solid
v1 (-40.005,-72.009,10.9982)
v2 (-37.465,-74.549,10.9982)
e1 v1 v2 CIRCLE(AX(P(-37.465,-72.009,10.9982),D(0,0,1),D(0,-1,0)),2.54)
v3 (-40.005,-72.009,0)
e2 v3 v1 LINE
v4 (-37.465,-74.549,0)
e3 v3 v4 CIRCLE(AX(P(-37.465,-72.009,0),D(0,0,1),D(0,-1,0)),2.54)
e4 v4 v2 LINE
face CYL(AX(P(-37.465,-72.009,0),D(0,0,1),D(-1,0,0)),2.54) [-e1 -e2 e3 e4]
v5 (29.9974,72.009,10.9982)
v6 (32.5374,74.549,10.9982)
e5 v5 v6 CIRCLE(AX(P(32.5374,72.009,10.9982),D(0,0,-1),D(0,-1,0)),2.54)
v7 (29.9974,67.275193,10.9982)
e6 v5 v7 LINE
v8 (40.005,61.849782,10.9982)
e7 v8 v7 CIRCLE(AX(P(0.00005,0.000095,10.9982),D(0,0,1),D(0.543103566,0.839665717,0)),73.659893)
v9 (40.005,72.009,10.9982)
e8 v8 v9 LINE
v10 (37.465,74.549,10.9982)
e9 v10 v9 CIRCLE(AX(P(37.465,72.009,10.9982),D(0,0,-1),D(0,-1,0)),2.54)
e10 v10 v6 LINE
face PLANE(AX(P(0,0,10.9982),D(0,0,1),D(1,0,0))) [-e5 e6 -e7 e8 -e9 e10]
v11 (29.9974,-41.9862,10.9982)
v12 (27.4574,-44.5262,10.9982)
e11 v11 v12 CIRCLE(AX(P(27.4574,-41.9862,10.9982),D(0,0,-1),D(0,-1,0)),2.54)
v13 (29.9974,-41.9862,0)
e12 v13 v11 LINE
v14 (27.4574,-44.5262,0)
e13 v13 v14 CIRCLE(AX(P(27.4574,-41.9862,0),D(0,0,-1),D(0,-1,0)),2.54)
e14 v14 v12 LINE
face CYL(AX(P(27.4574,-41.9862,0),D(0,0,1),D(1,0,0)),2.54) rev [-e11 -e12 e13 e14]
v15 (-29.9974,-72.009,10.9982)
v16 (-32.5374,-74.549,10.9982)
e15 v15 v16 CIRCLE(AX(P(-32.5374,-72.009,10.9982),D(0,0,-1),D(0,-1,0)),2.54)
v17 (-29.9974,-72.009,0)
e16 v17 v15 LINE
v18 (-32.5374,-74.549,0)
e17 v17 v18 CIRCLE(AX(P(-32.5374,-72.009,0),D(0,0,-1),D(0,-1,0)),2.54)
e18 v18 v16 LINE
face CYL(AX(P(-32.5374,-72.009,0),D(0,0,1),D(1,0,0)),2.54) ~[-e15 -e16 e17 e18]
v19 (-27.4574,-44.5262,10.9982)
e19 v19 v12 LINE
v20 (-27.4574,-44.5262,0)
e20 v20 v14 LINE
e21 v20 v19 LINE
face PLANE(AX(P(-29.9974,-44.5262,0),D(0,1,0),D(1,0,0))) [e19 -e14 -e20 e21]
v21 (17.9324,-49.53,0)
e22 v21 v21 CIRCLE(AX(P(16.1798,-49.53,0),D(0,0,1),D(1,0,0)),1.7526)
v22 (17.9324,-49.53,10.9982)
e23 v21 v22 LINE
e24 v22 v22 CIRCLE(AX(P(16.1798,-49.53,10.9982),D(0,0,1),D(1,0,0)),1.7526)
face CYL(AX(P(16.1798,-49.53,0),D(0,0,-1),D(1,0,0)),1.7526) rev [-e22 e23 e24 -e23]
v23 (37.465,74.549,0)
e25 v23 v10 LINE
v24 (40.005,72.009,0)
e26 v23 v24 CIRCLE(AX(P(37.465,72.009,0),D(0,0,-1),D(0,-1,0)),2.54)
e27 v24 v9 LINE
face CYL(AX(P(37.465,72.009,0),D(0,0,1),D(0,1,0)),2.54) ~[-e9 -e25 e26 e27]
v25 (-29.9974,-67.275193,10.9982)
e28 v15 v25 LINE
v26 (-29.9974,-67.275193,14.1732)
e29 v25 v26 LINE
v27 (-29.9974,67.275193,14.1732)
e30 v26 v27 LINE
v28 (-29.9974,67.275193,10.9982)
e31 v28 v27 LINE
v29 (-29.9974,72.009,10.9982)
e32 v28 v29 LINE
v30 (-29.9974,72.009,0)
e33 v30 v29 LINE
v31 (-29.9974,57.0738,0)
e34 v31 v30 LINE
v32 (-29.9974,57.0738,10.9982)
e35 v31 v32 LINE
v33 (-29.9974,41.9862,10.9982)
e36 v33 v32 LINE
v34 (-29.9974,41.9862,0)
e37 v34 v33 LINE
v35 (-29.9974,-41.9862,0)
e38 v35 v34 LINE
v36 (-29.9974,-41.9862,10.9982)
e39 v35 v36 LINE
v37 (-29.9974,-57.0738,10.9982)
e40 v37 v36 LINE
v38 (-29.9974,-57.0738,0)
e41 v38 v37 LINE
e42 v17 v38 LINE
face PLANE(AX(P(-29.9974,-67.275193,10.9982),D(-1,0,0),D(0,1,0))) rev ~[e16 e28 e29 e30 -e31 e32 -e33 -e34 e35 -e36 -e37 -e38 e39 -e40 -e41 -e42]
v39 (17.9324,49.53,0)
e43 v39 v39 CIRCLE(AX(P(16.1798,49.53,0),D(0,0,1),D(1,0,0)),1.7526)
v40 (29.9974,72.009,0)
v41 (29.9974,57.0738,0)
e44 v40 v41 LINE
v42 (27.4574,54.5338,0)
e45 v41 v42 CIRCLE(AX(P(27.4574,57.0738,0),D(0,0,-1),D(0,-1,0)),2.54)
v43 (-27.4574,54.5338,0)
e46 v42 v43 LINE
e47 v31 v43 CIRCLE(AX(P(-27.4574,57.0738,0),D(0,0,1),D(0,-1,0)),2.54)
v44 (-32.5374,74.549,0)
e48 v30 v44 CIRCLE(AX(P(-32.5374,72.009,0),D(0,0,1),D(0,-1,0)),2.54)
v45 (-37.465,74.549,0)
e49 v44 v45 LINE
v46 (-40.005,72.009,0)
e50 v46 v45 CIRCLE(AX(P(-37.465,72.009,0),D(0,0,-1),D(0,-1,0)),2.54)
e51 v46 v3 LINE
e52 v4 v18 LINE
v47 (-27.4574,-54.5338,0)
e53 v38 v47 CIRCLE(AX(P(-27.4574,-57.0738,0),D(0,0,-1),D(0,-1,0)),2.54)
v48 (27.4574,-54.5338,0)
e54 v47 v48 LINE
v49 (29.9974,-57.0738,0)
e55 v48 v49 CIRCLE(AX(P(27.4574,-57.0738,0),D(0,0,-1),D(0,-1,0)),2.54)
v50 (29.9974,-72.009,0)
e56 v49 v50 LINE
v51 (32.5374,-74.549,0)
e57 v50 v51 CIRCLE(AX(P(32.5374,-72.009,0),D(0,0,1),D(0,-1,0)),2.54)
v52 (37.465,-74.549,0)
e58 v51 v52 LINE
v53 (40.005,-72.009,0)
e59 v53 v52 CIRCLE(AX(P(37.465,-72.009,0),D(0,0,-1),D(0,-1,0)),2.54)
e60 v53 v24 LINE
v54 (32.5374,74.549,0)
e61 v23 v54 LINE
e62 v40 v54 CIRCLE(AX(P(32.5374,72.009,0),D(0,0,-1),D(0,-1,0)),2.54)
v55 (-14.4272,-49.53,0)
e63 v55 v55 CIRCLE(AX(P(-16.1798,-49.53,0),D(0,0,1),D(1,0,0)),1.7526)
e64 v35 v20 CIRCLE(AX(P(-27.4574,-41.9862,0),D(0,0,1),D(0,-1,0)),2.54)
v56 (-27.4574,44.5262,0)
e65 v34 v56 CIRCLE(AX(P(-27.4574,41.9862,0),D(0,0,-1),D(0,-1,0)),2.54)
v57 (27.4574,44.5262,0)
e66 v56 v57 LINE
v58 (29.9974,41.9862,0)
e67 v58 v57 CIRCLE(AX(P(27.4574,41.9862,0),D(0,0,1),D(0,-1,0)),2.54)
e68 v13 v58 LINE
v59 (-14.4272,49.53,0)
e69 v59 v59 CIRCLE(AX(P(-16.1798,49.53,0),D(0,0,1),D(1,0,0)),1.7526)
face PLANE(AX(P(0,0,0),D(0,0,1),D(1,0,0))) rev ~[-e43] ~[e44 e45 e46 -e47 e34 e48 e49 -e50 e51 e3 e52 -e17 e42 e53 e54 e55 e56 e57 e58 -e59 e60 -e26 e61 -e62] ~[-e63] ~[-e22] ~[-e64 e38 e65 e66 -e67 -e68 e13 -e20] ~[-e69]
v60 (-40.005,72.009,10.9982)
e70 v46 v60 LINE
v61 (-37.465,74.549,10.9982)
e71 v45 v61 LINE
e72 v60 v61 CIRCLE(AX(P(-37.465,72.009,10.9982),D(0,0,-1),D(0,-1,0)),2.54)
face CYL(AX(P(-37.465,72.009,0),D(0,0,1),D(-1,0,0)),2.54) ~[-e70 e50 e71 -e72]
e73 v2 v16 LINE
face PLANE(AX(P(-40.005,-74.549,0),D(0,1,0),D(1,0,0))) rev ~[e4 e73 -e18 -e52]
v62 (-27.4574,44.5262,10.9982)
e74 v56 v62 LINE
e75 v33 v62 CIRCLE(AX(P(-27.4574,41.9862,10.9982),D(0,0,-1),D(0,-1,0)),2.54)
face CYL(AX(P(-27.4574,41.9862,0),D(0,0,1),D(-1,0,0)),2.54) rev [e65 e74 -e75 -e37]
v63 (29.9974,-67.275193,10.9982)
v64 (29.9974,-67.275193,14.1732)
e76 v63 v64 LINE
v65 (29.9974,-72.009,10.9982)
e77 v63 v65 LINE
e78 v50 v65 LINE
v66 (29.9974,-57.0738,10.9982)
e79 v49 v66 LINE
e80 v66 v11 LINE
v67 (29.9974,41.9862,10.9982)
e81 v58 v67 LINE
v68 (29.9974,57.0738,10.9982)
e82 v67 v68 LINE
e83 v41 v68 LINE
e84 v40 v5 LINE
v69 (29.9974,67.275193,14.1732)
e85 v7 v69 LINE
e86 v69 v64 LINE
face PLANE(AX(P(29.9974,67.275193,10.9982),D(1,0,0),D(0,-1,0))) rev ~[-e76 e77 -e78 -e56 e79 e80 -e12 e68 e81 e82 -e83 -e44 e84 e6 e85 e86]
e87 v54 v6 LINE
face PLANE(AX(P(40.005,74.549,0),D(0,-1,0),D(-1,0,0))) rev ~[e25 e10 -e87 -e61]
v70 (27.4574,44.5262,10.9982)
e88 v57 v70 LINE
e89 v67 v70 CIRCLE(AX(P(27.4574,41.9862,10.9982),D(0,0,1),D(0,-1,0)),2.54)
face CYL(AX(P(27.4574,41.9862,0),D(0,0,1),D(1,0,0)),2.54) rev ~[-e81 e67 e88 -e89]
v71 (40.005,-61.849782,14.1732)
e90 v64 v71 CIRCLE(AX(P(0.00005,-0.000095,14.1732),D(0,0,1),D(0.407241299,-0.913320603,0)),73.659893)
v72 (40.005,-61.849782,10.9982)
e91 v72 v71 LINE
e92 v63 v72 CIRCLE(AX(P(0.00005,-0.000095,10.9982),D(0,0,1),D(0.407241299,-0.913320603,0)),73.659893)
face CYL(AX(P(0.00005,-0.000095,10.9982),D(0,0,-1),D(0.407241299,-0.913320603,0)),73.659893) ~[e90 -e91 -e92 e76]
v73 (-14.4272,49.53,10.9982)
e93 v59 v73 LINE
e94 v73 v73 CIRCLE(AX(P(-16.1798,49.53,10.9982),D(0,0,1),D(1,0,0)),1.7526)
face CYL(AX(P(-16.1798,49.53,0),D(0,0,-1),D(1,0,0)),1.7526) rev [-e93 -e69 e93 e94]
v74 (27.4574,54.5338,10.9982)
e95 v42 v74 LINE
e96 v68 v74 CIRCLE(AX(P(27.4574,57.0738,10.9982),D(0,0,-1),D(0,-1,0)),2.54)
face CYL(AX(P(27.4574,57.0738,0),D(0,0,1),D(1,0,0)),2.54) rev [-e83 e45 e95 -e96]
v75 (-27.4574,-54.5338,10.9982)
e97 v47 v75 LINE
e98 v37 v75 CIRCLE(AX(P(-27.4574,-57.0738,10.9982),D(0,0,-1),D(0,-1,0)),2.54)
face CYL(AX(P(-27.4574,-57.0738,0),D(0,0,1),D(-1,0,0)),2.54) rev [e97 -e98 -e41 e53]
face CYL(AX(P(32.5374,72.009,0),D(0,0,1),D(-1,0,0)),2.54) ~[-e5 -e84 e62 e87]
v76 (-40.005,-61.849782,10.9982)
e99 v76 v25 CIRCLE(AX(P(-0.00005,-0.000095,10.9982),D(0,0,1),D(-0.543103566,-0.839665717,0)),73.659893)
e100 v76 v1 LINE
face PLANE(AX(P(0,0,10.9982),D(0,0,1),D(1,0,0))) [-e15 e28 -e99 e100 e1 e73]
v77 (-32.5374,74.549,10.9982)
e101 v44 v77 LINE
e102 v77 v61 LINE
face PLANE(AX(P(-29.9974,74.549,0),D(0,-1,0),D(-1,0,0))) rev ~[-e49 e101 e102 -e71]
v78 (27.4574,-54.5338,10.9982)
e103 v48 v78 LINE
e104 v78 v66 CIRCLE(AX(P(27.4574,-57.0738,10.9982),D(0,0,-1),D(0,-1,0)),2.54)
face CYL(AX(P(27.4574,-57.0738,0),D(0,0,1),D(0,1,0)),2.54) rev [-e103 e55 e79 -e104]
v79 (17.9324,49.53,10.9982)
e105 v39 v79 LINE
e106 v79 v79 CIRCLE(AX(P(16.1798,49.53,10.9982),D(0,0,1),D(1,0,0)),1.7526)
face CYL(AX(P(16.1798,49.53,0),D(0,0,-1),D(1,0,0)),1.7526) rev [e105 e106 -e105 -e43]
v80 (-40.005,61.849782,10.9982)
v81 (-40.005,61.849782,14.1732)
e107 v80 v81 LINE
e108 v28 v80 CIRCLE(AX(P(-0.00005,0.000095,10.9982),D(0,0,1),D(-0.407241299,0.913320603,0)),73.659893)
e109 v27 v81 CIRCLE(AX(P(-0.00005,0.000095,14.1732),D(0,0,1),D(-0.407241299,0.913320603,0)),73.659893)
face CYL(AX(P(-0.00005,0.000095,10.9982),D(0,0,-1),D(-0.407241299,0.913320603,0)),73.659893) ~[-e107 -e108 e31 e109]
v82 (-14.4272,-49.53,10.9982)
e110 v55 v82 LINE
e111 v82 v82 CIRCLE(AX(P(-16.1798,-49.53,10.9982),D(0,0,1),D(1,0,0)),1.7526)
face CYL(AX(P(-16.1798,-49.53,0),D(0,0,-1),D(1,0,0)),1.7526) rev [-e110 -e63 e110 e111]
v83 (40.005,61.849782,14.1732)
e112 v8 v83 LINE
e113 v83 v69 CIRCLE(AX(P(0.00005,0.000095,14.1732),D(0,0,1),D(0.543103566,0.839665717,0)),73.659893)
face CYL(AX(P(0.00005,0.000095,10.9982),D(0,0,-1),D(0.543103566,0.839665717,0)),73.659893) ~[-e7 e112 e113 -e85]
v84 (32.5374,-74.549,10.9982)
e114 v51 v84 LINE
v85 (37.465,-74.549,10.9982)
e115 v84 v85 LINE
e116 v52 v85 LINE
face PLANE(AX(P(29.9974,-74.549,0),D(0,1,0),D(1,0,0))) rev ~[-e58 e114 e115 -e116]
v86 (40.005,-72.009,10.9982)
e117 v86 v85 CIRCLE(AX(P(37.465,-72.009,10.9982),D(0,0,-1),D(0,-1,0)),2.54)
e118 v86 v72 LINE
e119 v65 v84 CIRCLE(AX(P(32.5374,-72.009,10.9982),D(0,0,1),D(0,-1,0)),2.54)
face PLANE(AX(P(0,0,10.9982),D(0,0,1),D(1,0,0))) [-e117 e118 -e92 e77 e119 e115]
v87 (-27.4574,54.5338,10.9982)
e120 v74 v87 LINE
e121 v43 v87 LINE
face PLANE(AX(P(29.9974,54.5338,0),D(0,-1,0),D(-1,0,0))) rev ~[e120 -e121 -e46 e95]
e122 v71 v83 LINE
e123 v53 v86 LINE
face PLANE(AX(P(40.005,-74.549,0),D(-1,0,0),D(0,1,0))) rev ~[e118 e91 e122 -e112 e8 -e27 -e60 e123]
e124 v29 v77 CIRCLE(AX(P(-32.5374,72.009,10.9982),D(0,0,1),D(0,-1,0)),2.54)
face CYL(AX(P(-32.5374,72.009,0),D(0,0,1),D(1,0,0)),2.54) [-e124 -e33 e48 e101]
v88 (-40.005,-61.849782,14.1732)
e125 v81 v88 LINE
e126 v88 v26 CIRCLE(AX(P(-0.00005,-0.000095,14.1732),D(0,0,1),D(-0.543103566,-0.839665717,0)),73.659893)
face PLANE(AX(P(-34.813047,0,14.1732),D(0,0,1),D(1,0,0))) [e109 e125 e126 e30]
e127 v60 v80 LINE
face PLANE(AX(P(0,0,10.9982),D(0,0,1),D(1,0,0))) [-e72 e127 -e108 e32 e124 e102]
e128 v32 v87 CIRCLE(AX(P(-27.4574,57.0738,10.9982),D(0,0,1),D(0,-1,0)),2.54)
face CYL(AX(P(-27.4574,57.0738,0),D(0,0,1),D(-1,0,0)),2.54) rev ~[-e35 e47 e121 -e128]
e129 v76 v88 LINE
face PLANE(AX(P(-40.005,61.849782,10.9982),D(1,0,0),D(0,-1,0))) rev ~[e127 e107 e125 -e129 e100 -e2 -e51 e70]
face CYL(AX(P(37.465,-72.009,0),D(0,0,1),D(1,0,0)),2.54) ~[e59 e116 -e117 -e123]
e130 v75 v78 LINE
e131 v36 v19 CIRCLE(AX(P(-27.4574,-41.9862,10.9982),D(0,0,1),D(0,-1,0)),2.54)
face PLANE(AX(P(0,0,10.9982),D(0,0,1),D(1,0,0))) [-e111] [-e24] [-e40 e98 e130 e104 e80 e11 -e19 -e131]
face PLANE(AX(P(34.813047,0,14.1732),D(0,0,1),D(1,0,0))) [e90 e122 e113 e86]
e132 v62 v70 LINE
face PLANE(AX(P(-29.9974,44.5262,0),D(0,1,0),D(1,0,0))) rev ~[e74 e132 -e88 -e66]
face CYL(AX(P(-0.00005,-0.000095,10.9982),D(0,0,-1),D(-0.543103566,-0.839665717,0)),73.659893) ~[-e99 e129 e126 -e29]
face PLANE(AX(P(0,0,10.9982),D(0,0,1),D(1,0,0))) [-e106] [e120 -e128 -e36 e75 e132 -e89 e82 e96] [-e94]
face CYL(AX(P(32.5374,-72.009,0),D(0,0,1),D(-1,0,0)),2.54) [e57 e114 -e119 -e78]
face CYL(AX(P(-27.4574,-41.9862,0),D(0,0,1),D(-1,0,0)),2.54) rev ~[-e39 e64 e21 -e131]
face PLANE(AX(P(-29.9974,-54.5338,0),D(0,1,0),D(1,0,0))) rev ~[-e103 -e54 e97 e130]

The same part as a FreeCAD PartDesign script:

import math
import FreeCAD as App
import Part
import Sketcher
from FreeCAD import Vector
Q = App.Units.Quantity


def edges_at(feature, points):
    """Names of the edges that pass closest to the given points."""
    edges = feature.Shape.Edges
    near = lambda p: min(range(len(edges)), key=lambda i: edges[i].distToShape(Part.Vertex(*p))[0])
    return sorted({f"Edge{near(p) + 1}" for p in points})

doc = App.newDocument("Part")
body = doc.addObject("PartDesign::Body", "Body")

# Sketch on XY plane
sketch1 = body.newObject("Sketcher::SketchObject", "Sketch")
sketch1.AttachmentSupport = (doc.getObject("XY_Plane"), [""])
sketch1.MapMode = "FlatFace"
sketch1.addGeometry(Part.LineSegment(Vector(30, 54.5, 0), Vector(-30, 54.5, 0)), False)
sketch1.addGeometry(Part.LineSegment(Vector(-30, 54.5, 0), Vector(-30, 74.5, 0)), False)
sketch1.addGeometry(Part.LineSegment(Vector(-30, 74.5, 0), Vector(-40, 74.5, 0)), False)
sketch1.addGeometry(Part.LineSegment(Vector(-40, 74.5, 0), Vector(-40, -74.5, 0)), False)
sketch1.addGeometry(Part.LineSegment(Vector(-40, -74.5, 0), Vector(-30, -74.5, 0)), False)
sketch1.addGeometry(Part.LineSegment(Vector(-30, -74.5, 0), Vector(-30, -54.5, 0)), False)
sketch1.addGeometry(Part.LineSegment(Vector(-30, -54.5, 0), Vector(30, -54.5, 0)), False)
sketch1.addGeometry(Part.LineSegment(Vector(30, -54.5, 0), Vector(30, -74.5, 0)), False)
sketch1.addGeometry(Part.LineSegment(Vector(30, -74.5, 0), Vector(40, -74.5, 0)), False)
sketch1.addGeometry(Part.LineSegment(Vector(40, -74.5, 0), Vector(40, 74.5, 0)), False)
sketch1.addGeometry(Part.LineSegment(Vector(40, 74.5, 0), Vector(30, 74.5, 0)), False)
sketch1.addGeometry(Part.LineSegment(Vector(30, 74.5, 0), Vector(30, 54.5, 0)), False)
sketch1.addGeometry(Part.Circle(Vector(-16.2, -49.5, 0), Vector(0, 0, 1), 1.8), False)
sketch1.addGeometry(Part.Circle(Vector(16.2, -49.5, 0), Vector(0, 0, 1), 1.8), False)
sketch1.addGeometry(Part.Circle(Vector(-16.2, 49.5, 0), Vector(0, 0, 1), 1.8), False)
sketch1.addGeometry(Part.LineSegment(Vector(30, -44.5, 0), Vector(-30, -44.5, 0)), False)
sketch1.addGeometry(Part.LineSegment(Vector(-30, -44.5, 0), Vector(-30, 44.5, 0)), False)
sketch1.addGeometry(Part.LineSegment(Vector(-30, 44.5, 0), Vector(30, 44.5, 0)), False)
sketch1.addGeometry(Part.LineSegment(Vector(30, 44.5, 0), Vector(30, -44.5, 0)), False)
sketch1.addGeometry(Part.Circle(Vector(16.2, 49.5, 0), Vector(0, 0, 1), 1.8), False)
sketch1.addConstraint(Sketcher.Constraint("Coincident", 0, 2, 1, 1))
sketch1.addConstraint(Sketcher.Constraint("Coincident", 1, 2, 2, 1))
sketch1.addConstraint(Sketcher.Constraint("Coincident", 2, 2, 3, 1))
sketch1.addConstraint(Sketcher.Constraint("Coincident", 3, 2, 4, 1))
sketch1.addConstraint(Sketcher.Constraint("Coincident", 4, 2, 5, 1))
sketch1.addConstraint(Sketcher.Constraint("Coincident", 5, 2, 6, 1))
sketch1.addConstraint(Sketcher.Constraint("Coincident", 6, 2, 7, 1))
sketch1.addConstraint(Sketcher.Constraint("Coincident", 7, 2, 8, 1))
sketch1.addConstraint(Sketcher.Constraint("Coincident", 8, 2, 9, 1))
sketch1.addConstraint(Sketcher.Constraint("Coincident", 9, 2, 10, 1))
sketch1.addConstraint(Sketcher.Constraint("Coincident", 10, 2, 11, 1))
sketch1.addConstraint(Sketcher.Constraint("Coincident", 11, 2, 0, 1))
sketch1.addConstraint(Sketcher.Constraint("Coincident", 15, 2, 16, 1))
sketch1.addConstraint(Sketcher.Constraint("Coincident", 16, 2, 17, 1))
sketch1.addConstraint(Sketcher.Constraint("Coincident", 17, 2, 18, 1))
sketch1.addConstraint(Sketcher.Constraint("Coincident", 18, 2, 15, 1))
sketch1.addConstraint(Sketcher.Constraint("Horizontal", 0))
sketch1.addConstraint(Sketcher.Constraint("Vertical", 1))
sketch1.addConstraint(Sketcher.Constraint("Horizontal", 2))
sketch1.addConstraint(Sketcher.Constraint("Vertical", 3))
sketch1.addConstraint(Sketcher.Constraint("Horizontal", 4))
sketch1.addConstraint(Sketcher.Constraint("Vertical", 5))
sketch1.addConstraint(Sketcher.Constraint("Horizontal", 6))
sketch1.addConstraint(Sketcher.Constraint("Vertical", 7))
sketch1.addConstraint(Sketcher.Constraint("Horizontal", 8))
sketch1.addConstraint(Sketcher.Constraint("Vertical", 9))
sketch1.addConstraint(Sketcher.Constraint("Horizontal", 10))
sketch1.addConstraint(Sketcher.Constraint("Vertical", 11))
sketch1.addConstraint(Sketcher.Constraint("Horizontal", 15))
sketch1.addConstraint(Sketcher.Constraint("Vertical", 16))
sketch1.addConstraint(Sketcher.Constraint("Horizontal", 17))
sketch1.addConstraint(Sketcher.Constraint("Vertical", 18))
sketch1.addConstraint(Sketcher.Constraint("Equal", 12, 13))
sketch1.addConstraint(Sketcher.Constraint("Equal", 13, 14))
sketch1.addConstraint(Sketcher.Constraint("Equal", 14, 19))
sketch1.addConstraint(Sketcher.Constraint("Symmetric", 13, 3, 14, 3, -1, 1))
sketch1.addConstraint(Sketcher.Constraint("Symmetric", 12, 3, 19, 3, -1, 1))
sketch1.addConstraint(Sketcher.Constraint("Symmetric", 0, 2, 6, 2, -1, 1))
sketch1.addConstraint(Sketcher.Constraint("Symmetric", 2, 2, 8, 2, -1, 1))
sketch1.addConstraint(Sketcher.Constraint("Symmetric", 4, 2, 10, 2, -1, 1))
sketch1.addConstraint(Sketcher.Constraint("Symmetric", 15, 2, 17, 2, -1, 1))
sketch1.addConstraint(Sketcher.Constraint("Symmetric", 12, 3, 13, 3, -2))
sketch1.addConstraint(Sketcher.Constraint("Symmetric", 4, 2, 7, 2, -2))
sketch1.addConstraint(Sketcher.Constraint("Vertical", 5, 2, 15, 2))
sketch1.addConstraint(Sketcher.Constraint("Diameter", 12, Q("0.138 in")))
sketch1.addConstraint(Sketcher.Constraint("DistanceY", 3, 2, 3, 1, Q("5.87 in")))
sketch1.addConstraint(Sketcher.Constraint("DistanceY", 12, 3, 14, 3, Q("3.9 in")))
sketch1.addConstraint(Sketcher.Constraint("DistanceX", 0, 2, 0, 1, Q("2.362 in")))
sketch1.addConstraint(Sketcher.Constraint("DistanceX", 2, 2, 2, 1, Q("0.394 in")))
sketch1.addConstraint(Sketcher.Constraint("DistanceY", 1, 1, 1, 2, Q("0.788 in")))
sketch1.addConstraint(Sketcher.Constraint("DistanceY", 16, 1, 16, 2, Q("3.506 in")))
sketch1.addConstraint(Sketcher.Constraint("DistanceX", 12, 3, -1, 1, Q("0.637 in")))
pad1 = body.newObject("PartDesign::Pad", "Pad")
pad1.Profile = sketch1
pad1.Length = Q("0.433 in")

# Sketch on XY plane
sketch2 = body.newObject("Sketcher::SketchObject", "Sketch001")
sketch2.AttachmentSupport = (doc.getObject("XY_Plane"), [""])
sketch2.MapMode = "FlatFace"
sketch2.AttachmentOffset = App.Placement(Vector(0, 0, 0.433 * 25.4), App.Rotation())
sketch2.addGeometry(Part.ArcOfCircle(Part.Circle(Vector(0, 0, 0), Vector(0, 0, 1), 74), math.radians(114.03), math.radians(122.9)), False)
sketch2.addGeometry(Part.LineSegment(Vector(-40, 62, 0), Vector(-40, -62, 0)), False)
sketch2.addGeometry(Part.ArcOfCircle(Part.Circle(Vector(0, 0, 0), Vector(0, 0, 1), 74), math.radians(-122.9), math.radians(-114.03)), False)
sketch2.addGeometry(Part.LineSegment(Vector(-30, -67, 0), Vector(-30, 67, 0)), False)
sketch2.addGeometry(Part.LineSegment(Vector(30, 67, 0), Vector(30, -67, 0)), False)
sketch2.addGeometry(Part.ArcOfCircle(Part.Circle(Vector(0, 0, 0), Vector(0, 0, 1), 74), math.radians(-65.97), math.radians(-57.1)), False)
sketch2.addGeometry(Part.LineSegment(Vector(40, -62, 0), Vector(40, 62, 0)), False)
sketch2.addGeometry(Part.ArcOfCircle(Part.Circle(Vector(0, 0, 0), Vector(0, 0, 1), 74), math.radians(57.1), math.radians(65.97)), False)
sketch2.addConstraint(Sketcher.Constraint("Coincident", 0, 2, 1, 1))
sketch2.addConstraint(Sketcher.Constraint("Coincident", 1, 2, 2, 1))
sketch2.addConstraint(Sketcher.Constraint("Coincident", 2, 2, 3, 1))
sketch2.addConstraint(Sketcher.Constraint("Coincident", 3, 2, 0, 1))
sketch2.addConstraint(Sketcher.Constraint("Coincident", 4, 2, 5, 1))
sketch2.addConstraint(Sketcher.Constraint("Coincident", 5, 2, 6, 1))
sketch2.addConstraint(Sketcher.Constraint("Coincident", 6, 2, 7, 1))
sketch2.addConstraint(Sketcher.Constraint("Coincident", 7, 2, 4, 1))
sketch2.addConstraint(Sketcher.Constraint("Vertical", 1))
sketch2.addConstraint(Sketcher.Constraint("Vertical", 3))
sketch2.addConstraint(Sketcher.Constraint("Vertical", 4))
sketch2.addConstraint(Sketcher.Constraint("Vertical", 6))
sketch2.addConstraint(Sketcher.Constraint("Equal", 0, 2))
sketch2.addConstraint(Sketcher.Constraint("Equal", 2, 5))
sketch2.addConstraint(Sketcher.Constraint("Equal", 5, 7))
sketch2.addConstraint(Sketcher.Constraint("Symmetric", 0, 3, 5, 3, -1, 1))
sketch2.addConstraint(Sketcher.Constraint("Symmetric", 2, 3, 7, 3, -1, 1))
sketch2.addConstraint(Sketcher.Constraint("Symmetric", 2, 3, 5, 3, -2))
sketch2.addConstraint(Sketcher.Constraint("Horizontal", 2, 2, 4, 2))
sketch2.addConstraint(Sketcher.Constraint("Horizontal", 1, 2, 5, 2))
sketch2.addConstraint(Sketcher.Constraint("DistanceX", 0, 2, -1, 1, Q("1.575 in")))
sketch2.addConstraint(Sketcher.Constraint("DistanceX", 2, 2, -1, 1, Q("1.181 in")))
sketch2.addConstraint(Sketcher.Constraint("Radius", 0, 73.659893))
sketch2.addConstraint(Sketcher.Constraint("DistanceY", 1, 2, 1, 1, 123.699564))
sketch2.addConstraint(Sketcher.Constraint("DistanceY", 3, 1, 3, 2, 134.550386))
pad2 = body.newObject("PartDesign::Pad", "Pad001")
pad2.Profile = sketch2
pad2.Length = Q("0.125 in")
doc.recompute()

fillet = body.newObject("PartDesign::Fillet", "Fillet")
fillet.Base = (pad2, edges_at(pad2, [
    (29.997, 44.526, 5.499),
    (-29.997, 44.526, 5.499),
    (29.997, 54.534, 5.499),
    (-29.997, 54.534, 5.499),
    (-29.997, 74.549, 5.499),
    (-40.005, 74.549, 5.499),
    (29.997, 74.549, 5.499),
    (40.005, 74.549, 5.499),
    (29.997, -74.549, 5.499),
    (40.005, -74.549, 5.499),
    (-29.997, -74.549, 5.499),
    (-40.005, -74.549, 5.499),
    (-29.997, -54.534, 5.499),
    (29.997, -54.534, 5.499),
    (29.997, -44.526, 5.499),
    (-29.997, -44.526, 5.499),
]))
fillet.Radius = Q("0.1 in")

doc.recompute()
